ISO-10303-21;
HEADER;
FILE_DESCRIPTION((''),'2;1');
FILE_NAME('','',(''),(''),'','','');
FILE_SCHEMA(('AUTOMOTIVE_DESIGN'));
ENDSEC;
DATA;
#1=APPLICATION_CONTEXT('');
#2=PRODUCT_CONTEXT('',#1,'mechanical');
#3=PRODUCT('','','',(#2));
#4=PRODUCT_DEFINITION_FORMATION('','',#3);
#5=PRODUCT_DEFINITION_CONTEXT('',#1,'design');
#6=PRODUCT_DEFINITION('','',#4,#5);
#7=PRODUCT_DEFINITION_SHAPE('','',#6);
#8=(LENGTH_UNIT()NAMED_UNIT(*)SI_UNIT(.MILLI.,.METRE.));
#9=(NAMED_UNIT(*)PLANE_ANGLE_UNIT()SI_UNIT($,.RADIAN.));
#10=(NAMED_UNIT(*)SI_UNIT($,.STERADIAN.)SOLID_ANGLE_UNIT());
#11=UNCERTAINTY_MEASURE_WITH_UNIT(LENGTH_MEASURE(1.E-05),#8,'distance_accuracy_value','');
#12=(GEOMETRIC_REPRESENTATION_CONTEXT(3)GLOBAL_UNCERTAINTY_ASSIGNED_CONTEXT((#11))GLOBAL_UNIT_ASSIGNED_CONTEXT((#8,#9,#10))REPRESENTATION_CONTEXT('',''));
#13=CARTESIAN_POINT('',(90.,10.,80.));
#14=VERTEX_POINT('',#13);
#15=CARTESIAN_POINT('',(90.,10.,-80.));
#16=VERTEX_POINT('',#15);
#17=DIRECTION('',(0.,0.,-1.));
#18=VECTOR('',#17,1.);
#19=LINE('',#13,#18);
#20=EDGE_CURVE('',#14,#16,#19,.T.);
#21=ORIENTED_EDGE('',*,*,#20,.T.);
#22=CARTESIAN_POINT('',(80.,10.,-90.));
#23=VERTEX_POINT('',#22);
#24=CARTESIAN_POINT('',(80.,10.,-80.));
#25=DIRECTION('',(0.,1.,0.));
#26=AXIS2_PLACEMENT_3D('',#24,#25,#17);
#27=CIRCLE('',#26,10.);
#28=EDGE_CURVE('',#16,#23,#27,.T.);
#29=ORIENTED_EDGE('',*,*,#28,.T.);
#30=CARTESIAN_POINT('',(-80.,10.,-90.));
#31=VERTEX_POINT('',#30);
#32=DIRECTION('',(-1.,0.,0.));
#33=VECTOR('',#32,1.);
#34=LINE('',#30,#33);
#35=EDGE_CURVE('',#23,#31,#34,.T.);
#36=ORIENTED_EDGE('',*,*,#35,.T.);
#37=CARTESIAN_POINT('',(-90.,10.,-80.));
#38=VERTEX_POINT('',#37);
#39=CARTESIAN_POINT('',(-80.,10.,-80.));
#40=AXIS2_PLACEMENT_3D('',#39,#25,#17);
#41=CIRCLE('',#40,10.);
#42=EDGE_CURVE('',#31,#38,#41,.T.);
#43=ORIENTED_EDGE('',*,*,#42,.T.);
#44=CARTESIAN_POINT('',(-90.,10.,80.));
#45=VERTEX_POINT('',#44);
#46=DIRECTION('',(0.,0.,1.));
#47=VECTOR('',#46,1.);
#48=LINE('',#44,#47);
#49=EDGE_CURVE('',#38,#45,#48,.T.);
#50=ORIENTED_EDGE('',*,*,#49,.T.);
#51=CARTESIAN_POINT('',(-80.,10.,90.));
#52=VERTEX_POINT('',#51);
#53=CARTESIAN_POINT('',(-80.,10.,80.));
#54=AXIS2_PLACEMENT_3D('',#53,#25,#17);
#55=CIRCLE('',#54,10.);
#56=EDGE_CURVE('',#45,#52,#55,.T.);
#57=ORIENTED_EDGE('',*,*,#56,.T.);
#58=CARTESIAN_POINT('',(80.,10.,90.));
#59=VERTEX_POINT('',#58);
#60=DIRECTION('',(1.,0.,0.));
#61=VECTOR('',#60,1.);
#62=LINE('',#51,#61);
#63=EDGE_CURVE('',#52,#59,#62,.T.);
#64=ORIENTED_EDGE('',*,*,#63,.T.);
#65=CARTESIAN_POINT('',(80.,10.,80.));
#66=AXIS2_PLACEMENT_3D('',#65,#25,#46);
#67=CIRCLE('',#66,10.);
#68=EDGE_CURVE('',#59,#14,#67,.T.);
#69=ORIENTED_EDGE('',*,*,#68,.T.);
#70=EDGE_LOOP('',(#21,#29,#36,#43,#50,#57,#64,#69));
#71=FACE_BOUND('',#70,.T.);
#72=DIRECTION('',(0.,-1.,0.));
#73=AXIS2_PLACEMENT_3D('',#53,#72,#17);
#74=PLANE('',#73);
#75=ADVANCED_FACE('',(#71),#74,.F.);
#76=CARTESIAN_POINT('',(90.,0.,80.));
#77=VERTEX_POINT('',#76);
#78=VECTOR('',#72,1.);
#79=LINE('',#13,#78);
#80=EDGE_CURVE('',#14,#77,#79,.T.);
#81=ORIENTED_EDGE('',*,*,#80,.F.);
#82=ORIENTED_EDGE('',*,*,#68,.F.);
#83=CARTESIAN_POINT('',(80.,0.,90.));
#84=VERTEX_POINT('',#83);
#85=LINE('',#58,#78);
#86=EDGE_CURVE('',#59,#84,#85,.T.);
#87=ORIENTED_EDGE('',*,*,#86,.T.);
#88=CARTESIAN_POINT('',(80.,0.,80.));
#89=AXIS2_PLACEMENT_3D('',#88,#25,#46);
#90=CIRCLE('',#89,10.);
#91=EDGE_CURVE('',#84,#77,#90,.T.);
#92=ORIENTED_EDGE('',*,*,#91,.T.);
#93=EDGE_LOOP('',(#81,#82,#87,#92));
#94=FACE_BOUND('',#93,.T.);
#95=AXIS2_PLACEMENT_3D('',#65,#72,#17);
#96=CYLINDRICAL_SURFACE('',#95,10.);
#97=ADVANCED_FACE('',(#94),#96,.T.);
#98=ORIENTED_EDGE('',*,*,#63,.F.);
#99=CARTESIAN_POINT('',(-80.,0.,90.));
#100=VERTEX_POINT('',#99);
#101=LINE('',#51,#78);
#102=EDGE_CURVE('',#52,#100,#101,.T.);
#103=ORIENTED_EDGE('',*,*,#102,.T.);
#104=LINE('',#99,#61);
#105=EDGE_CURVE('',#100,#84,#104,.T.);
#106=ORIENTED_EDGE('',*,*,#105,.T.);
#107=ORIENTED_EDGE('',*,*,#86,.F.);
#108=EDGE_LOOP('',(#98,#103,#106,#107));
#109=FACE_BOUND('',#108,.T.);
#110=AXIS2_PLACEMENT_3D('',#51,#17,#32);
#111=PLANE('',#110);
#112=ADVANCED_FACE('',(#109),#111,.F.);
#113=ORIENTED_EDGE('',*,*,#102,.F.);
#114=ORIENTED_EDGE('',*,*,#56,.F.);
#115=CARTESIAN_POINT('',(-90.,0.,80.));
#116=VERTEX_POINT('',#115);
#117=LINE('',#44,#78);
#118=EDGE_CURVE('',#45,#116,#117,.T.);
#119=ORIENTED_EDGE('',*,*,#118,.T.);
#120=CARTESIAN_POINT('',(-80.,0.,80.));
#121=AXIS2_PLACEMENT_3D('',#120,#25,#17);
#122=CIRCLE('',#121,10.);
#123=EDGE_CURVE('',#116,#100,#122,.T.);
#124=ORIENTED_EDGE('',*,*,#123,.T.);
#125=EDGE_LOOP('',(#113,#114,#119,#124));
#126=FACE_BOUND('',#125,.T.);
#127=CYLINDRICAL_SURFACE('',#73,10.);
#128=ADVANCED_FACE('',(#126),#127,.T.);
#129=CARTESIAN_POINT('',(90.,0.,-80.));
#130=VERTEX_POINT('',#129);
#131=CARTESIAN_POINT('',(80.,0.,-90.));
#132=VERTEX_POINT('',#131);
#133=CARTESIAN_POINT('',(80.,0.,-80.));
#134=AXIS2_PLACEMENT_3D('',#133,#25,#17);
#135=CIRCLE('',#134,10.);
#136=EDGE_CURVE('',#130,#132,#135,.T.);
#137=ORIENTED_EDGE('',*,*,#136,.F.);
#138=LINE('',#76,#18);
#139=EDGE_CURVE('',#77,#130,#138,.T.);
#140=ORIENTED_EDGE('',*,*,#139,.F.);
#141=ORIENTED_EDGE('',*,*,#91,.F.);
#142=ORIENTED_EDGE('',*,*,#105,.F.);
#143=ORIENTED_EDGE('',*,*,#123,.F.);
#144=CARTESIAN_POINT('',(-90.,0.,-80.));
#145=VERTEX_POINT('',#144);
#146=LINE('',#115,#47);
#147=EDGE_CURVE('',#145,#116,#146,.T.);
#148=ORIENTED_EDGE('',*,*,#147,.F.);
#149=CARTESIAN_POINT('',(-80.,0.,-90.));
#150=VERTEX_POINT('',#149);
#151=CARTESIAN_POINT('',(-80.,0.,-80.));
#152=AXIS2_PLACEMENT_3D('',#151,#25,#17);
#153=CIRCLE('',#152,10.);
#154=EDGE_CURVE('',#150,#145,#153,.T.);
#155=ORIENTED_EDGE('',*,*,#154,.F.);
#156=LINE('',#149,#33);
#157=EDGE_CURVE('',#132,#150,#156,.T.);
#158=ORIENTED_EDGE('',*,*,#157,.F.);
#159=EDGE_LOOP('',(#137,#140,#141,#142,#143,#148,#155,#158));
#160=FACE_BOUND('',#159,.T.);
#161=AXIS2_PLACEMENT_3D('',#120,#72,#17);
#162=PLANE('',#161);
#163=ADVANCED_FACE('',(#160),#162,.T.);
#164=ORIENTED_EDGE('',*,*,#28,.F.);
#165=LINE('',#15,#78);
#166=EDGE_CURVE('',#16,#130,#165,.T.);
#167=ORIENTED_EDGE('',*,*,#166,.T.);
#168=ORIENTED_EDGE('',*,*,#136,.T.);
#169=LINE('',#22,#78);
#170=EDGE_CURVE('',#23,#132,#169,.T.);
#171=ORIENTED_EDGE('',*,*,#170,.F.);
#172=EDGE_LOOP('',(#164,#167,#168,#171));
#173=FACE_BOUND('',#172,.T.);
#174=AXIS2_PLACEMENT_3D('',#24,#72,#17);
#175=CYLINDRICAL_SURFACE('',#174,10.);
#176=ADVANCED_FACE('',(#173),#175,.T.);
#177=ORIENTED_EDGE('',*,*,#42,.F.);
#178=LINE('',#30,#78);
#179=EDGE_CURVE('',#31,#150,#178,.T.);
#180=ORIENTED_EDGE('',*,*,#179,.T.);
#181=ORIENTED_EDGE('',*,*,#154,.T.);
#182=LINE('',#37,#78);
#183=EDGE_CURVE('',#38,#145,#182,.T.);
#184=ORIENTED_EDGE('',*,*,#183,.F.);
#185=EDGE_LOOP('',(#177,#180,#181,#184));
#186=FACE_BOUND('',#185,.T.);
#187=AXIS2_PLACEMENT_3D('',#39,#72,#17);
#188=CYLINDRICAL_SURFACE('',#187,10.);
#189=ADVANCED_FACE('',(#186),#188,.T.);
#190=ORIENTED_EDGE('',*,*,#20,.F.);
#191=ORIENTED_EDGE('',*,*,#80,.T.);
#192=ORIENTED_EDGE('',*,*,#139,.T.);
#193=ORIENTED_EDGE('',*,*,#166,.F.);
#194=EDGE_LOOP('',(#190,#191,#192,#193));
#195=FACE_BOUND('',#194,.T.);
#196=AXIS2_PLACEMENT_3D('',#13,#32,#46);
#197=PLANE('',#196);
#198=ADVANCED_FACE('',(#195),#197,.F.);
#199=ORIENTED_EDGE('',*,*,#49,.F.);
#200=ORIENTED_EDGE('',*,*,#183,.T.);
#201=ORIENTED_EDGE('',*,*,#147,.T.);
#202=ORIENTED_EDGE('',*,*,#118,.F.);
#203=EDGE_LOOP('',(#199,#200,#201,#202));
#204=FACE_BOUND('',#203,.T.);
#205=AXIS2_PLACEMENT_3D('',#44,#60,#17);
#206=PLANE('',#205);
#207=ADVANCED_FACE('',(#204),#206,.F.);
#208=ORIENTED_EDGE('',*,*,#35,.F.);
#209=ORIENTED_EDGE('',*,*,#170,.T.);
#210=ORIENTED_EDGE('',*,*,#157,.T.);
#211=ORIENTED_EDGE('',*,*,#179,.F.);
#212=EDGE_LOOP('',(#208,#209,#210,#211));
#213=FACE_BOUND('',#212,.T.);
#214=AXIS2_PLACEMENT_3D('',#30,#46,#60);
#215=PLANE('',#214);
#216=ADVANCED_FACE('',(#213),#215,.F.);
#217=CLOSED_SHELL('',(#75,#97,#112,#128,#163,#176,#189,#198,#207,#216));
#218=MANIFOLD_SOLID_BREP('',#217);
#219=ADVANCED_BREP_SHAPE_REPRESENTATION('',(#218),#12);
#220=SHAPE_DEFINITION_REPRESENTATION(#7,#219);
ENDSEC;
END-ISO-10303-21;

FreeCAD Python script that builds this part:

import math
import FreeCAD as App
import Part
import Sketcher

V = App.Vector
Q = App.Units.Quantity

doc = App.newDocument("Part")
body = doc.addObject("PartDesign::Body", "Body")

sketch1 = body.newObject("Sketcher::SketchObject", "Sketch")
sketch1.AttachmentSupport = (doc.getObject("XZ_Plane"), [""])
sketch1.MapMode = "FlatFace"
sketch1.addGeometry([
    Part.LineSegment(V(-80, 90, 0), V(80, 90, 0)),
    Part.ArcOfCircle(Part.Circle(V(80, 80, 0), V(0, 0, 1), 10), math.radians(0), math.radians(90)),
    Part.LineSegment(V(90, 80, 0), V(90, -80, 0)),
    Part.ArcOfCircle(Part.Circle(V(80, -80, 0), V(0, 0, 1), 10), math.radians(-90), math.radians(0)),
    Part.LineSegment(V(80, -90, 0), V(-80, -90, 0)),
    Part.ArcOfCircle(Part.Circle(V(-80, -80, 0), V(0, 0, 1), 10), math.radians(180), math.radians(270)),
    Part.LineSegment(V(-90, -80, 0), V(-90, 80, 0)),
    Part.ArcOfCircle(Part.Circle(V(-80, 80, 0), V(0, 0, 1), 10), math.radians(90), math.radians(180)),
], False)
sketch1.addConstraint([
    Sketcher.Constraint("Tangent", 0, 2, 1, 2),
    Sketcher.Constraint("Tangent", 1, 1, 2, 1),
    Sketcher.Constraint("Tangent", 2, 2, 3, 2),
    Sketcher.Constraint("Tangent", 3, 1, 4, 1),
    Sketcher.Constraint("Tangent", 4, 2, 5, 2),
    Sketcher.Constraint("Tangent", 5, 1, 6, 1),
    Sketcher.Constraint("Tangent", 6, 2, 7, 2),
    Sketcher.Constraint("Tangent", 7, 1, 0, 1),
    Sketcher.Constraint("Horizontal", 0),
    Sketcher.Constraint("Vertical", 2),
    Sketcher.Constraint("Horizontal", 4),
    Sketcher.Constraint("Vertical", 6),
    Sketcher.Constraint("Equal", 1, 3),
    Sketcher.Constraint("Equal", 3, 5),
    Sketcher.Constraint("Equal", 5, 7),
    Sketcher.Constraint("Symmetric", 1, 3, 5, 3, -1, 1),
    Sketcher.Constraint("Equal", 4, 2),
    Sketcher.Constraint("Radius", 1, Q("10 mm")),
    Sketcher.Constraint("DistanceX", 0, 1, 0, 2, Q("160 mm")),
])
pad1 = body.newObject("PartDesign::Pad", "Pad")
pad1.Profile = sketch1
pad1.Length = 10
pad1.Reversed = True

doc.recompute()
